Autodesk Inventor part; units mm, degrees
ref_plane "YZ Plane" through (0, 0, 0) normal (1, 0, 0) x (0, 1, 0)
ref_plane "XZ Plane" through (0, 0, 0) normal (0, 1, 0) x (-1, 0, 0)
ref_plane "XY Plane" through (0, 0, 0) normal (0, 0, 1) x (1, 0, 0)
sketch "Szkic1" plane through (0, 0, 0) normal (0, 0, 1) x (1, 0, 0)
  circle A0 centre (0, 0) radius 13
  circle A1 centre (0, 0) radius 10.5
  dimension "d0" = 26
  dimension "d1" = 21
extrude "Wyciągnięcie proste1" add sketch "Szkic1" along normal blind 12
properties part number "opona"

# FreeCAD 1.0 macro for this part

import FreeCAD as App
import Part
import Sketcher
from FreeCAD import Vector

doc = App.newDocument("Part")
body = doc.addObject("PartDesign::Body", "Body")

# Sketch on XY plane
sketch1 = body.newObject("Sketcher::SketchObject", "Sketch")
sketch1.AttachmentSupport = (doc.getObject("XY_Plane"), [""])
sketch1.MapMode = "FlatFace"
sketch1.addGeometry([
    Part.Circle(Vector(0, 0, 0), Vector(0, 0, 1), 13),
    Part.Circle(Vector(0, 0, 0), Vector(0, 0, 1), 10),
], False)
sketch1.addConstraint([
    Sketcher.Constraint("Coincident", 0, 3, -1, 1),
    Sketcher.Constraint("Coincident", 1, 3, -1, 1),
    Sketcher.Constraint("Diameter", 0, 26.0),
    Sketcher.Constraint("Diameter", 1, 21.0),
])
pad1 = body.newObject("PartDesign::Pad", "Pad")
pad1.Profile = sketch1
pad1.Length = 12

doc.recompute()
